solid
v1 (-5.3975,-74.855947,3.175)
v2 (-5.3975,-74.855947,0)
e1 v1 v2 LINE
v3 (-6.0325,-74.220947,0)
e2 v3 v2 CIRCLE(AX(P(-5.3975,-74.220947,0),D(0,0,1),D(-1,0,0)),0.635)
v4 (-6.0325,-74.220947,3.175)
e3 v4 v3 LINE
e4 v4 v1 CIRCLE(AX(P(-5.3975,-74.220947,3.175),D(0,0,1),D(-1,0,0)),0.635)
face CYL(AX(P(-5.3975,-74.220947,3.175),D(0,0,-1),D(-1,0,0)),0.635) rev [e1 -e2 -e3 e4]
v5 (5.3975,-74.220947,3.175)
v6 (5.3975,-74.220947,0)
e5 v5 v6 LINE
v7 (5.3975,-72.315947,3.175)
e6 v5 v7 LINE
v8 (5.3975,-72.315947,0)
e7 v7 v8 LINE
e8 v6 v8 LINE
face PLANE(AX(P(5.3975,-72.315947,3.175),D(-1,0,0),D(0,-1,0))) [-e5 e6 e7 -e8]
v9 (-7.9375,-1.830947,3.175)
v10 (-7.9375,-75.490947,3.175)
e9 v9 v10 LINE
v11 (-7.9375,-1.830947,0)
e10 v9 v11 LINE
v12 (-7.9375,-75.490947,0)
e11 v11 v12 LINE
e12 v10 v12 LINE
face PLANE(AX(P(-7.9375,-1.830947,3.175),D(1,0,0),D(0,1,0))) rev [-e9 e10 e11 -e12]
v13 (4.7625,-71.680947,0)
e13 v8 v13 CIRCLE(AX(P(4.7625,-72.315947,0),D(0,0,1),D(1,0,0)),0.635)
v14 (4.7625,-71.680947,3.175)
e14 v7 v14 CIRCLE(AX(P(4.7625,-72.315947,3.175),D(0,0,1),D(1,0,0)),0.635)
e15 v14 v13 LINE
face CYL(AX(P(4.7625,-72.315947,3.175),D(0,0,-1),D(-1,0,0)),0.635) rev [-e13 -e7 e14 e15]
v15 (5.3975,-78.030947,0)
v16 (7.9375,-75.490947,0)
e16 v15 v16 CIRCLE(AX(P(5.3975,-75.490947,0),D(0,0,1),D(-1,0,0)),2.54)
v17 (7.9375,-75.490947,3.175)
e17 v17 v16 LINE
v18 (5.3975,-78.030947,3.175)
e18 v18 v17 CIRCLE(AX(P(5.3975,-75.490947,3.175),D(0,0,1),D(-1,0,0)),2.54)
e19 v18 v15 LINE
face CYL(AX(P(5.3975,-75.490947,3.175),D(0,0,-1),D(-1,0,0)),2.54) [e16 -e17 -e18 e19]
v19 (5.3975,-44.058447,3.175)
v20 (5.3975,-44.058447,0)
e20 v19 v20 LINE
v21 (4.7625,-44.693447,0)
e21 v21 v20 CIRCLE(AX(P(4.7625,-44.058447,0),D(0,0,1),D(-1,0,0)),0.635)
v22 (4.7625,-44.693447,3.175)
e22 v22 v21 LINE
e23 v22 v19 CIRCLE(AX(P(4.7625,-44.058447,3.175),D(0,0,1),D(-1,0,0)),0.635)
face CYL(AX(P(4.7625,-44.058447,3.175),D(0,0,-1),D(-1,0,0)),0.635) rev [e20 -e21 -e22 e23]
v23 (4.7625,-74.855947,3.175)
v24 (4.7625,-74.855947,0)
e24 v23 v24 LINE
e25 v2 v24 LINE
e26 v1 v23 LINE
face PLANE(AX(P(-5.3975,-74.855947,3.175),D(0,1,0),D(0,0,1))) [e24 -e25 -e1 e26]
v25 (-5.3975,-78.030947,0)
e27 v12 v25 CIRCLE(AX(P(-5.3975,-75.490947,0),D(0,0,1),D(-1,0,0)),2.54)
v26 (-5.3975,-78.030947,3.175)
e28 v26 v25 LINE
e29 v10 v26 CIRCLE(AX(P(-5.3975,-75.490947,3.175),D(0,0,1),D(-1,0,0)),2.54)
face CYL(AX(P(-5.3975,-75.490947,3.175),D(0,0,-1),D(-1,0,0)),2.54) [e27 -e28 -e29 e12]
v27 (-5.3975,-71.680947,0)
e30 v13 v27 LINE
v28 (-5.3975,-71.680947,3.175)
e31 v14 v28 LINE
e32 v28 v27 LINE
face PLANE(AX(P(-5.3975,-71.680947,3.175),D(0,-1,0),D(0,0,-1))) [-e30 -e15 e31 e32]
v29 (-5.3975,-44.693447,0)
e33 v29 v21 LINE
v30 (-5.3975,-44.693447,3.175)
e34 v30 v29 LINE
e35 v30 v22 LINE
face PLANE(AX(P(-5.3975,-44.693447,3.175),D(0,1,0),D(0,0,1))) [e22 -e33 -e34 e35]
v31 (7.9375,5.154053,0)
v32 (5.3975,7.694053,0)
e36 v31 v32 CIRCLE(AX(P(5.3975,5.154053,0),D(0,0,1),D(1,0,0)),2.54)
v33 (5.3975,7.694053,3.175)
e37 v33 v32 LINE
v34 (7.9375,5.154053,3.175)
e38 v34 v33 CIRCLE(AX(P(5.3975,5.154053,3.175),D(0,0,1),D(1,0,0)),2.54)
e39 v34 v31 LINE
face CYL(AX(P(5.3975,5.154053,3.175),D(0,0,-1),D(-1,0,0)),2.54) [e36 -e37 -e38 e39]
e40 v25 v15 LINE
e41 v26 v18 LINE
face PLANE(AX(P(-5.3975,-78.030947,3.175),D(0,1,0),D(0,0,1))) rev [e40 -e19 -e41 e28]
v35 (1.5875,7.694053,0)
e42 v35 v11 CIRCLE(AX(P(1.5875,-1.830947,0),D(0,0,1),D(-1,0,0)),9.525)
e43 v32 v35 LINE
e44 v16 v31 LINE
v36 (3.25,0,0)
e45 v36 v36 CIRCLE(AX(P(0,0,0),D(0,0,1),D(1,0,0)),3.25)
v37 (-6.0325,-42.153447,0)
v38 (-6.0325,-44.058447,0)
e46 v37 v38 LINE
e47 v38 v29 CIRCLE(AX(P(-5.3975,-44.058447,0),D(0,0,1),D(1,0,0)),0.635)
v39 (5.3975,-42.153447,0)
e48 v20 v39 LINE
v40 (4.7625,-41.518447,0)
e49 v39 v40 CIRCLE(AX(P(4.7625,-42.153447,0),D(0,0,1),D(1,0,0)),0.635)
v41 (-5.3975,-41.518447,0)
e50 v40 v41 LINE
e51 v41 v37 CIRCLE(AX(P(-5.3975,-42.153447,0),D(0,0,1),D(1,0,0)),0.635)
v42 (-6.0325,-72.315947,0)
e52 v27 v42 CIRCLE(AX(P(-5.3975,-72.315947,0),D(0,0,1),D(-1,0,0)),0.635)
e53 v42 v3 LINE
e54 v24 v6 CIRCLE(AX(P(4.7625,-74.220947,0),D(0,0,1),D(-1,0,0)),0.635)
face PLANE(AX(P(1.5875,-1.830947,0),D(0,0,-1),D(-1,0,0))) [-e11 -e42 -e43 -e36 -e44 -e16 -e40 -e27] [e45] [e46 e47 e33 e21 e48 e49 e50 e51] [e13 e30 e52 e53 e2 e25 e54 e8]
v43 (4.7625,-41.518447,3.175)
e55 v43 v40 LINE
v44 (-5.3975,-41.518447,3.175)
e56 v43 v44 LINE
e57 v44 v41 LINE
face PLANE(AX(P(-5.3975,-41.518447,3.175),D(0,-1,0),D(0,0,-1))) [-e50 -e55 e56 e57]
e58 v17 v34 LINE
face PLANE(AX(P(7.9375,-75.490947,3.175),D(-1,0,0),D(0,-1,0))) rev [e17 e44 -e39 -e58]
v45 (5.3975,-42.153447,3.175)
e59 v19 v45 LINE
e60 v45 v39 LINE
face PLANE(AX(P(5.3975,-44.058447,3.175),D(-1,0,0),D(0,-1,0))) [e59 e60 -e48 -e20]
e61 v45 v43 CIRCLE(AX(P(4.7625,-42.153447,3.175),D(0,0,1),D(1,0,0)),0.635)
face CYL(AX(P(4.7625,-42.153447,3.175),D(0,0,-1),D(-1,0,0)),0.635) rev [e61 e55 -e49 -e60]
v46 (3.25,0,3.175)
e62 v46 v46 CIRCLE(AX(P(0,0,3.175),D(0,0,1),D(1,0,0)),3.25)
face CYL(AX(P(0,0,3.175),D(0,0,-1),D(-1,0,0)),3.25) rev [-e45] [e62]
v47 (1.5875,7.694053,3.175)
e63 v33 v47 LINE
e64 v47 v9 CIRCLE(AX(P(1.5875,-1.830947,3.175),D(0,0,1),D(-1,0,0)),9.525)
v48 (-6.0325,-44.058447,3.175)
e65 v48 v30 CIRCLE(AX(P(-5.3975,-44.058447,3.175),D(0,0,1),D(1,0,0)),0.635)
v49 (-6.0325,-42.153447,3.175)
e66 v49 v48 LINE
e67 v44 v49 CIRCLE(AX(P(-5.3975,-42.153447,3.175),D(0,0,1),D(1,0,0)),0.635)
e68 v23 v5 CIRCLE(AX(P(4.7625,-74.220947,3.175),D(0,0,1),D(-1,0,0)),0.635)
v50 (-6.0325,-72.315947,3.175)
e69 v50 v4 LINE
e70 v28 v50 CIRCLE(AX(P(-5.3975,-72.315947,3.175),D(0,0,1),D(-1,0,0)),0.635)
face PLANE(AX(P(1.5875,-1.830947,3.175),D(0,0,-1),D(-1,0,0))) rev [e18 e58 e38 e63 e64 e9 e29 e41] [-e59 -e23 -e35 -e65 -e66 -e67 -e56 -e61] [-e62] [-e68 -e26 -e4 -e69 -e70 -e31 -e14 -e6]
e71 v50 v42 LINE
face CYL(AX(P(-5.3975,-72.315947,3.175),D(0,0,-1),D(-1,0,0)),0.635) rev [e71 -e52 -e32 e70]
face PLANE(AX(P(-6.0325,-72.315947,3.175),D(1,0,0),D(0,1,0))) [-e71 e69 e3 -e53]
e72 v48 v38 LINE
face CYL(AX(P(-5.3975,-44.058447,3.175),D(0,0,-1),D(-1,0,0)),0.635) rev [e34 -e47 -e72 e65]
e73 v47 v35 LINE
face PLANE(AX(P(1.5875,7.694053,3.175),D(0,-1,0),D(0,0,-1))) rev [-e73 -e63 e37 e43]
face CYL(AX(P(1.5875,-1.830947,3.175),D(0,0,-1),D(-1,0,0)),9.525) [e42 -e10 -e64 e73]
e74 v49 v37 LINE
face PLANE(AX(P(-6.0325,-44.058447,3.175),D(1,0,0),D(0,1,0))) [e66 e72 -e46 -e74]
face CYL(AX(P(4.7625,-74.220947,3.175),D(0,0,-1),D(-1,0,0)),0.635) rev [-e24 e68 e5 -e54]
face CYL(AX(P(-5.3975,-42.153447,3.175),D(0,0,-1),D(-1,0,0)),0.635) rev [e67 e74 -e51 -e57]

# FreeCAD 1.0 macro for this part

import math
import FreeCAD as App
import Part
import Sketcher
Q = App.Units.Quantity

doc = App.newDocument("Part")
body = doc.addObject("PartDesign::Body", "Body")

# Sketch on XY plane
sketch1 = doc.addObject("Sketcher::SketchObject", "Sketch")
body.addObject(sketch1)
sketch1.AttachmentSupport = (doc.XY_Plane, [""])
sketch1.MapMode = "FlatFace"
sketch1.addGeometry(Part.LineSegment(App.Vector(-7.9, -1.8, 0), App.Vector(-7.9, -75.5, 0)), False)
sketch1.addGeometry(Part.ArcOfCircle(Part.Circle(App.Vector(-5.4, -75.5, 0), App.Vector(0, 0, 1), 2.5), math.radians(-180), math.radians(-90)), False)
sketch1.addGeometry(Part.LineSegment(App.Vector(-5.4, -78, 0), App.Vector(5.4, -78, 0)), False)
sketch1.addGeometry(Part.ArcOfCircle(Part.Circle(App.Vector(5.4, -75.5, 0), App.Vector(0, 0, 1), 2.5), math.radians(-90), math.radians(0)), False)
sketch1.addGeometry(Part.LineSegment(App.Vector(7.9, -75.5, 0), App.Vector(7.9, 5.2, 0)), False)
sketch1.addGeometry(Part.ArcOfCircle(Part.Circle(App.Vector(5.4, 5.2, 0), App.Vector(0, 0, 1), 2.5), math.radians(0), math.radians(90)), False)
sketch1.addGeometry(Part.LineSegment(App.Vector(5.4, 7.7, 0), App.Vector(1.6, 7.7, 0)), False)
sketch1.addGeometry(Part.ArcOfCircle(Part.Circle(App.Vector(1.6, -1.8, 0), App.Vector(0, 0, 1), 9.5), math.radians(90), math.radians(180)), False)
sketch1.addGeometry(Part.ArcOfCircle(Part.Circle(App.Vector(-5.4, -42.2, 0), App.Vector(0, 0, 1), 0.6), math.radians(90), math.radians(180)), False)
sketch1.addGeometry(Part.LineSegment(App.Vector(-5.4, -41.5, 0), App.Vector(4.8, -41.5, 0)), False)
sketch1.addGeometry(Part.ArcOfCircle(Part.Circle(App.Vector(4.8, -42.2, 0), App.Vector(0, 0, 1), 0.6), math.radians(0), math.radians(90)), False)
sketch1.addGeometry(Part.LineSegment(App.Vector(5.4, -42.2, 0), App.Vector(5.4, -44.1, 0)), False)
sketch1.addGeometry(Part.ArcOfCircle(Part.Circle(App.Vector(4.8, -44.1, 0), App.Vector(0, 0, 1), 0.6), math.radians(-90), math.radians(0)), False)
sketch1.addGeometry(Part.LineSegment(App.Vector(4.8, -44.7, 0), App.Vector(-5.4, -44.7, 0)), False)
sketch1.addGeometry(Part.ArcOfCircle(Part.Circle(App.Vector(-5.4, -44.1, 0), App.Vector(0, 0, 1), 0.6), math.radians(180), math.radians(270)), False)
sketch1.addGeometry(Part.LineSegment(App.Vector(-6, -44.1, 0), App.Vector(-6, -42.2, 0)), False)
sketch1.addGeometry(Part.ArcOfCircle(Part.Circle(App.Vector(-5.4, -72.3, 0), App.Vector(0, 0, 1), 0.6), math.radians(90), math.radians(180)), False)
sketch1.addGeometry(Part.LineSegment(App.Vector(-5.4, -71.7, 0), App.Vector(4.8, -71.7, 0)), False)
sketch1.addGeometry(Part.ArcOfCircle(Part.Circle(App.Vector(4.8, -72.3, 0), App.Vector(0, 0, 1), 0.6), math.radians(0), math.radians(90)), False)
sketch1.addGeometry(Part.LineSegment(App.Vector(5.4, -72.3, 0), App.Vector(5.4, -74.2, 0)), False)
sketch1.addGeometry(Part.ArcOfCircle(Part.Circle(App.Vector(4.8, -74.2, 0), App.Vector(0, 0, 1), 0.6), math.radians(-90), math.radians(0)), False)
sketch1.addGeometry(Part.LineSegment(App.Vector(4.8, -74.9, 0), App.Vector(-5.4, -74.9, 0)), False)
sketch1.addGeometry(Part.ArcOfCircle(Part.Circle(App.Vector(-5.4, -74.2, 0), App.Vector(0, 0, 1), 0.6), math.radians(180), math.radians(270)), False)
sketch1.addGeometry(Part.LineSegment(App.Vector(-6, -74.2, 0), App.Vector(-6, -72.3, 0)), False)
sketch1.addGeometry(Part.Circle(App.Vector(0, 0, 0), App.Vector(0, 0, 1), 3.2), False)
sketch1.addConstraint(Sketcher.Constraint("Tangent", 0, 2, 1, 1))
sketch1.addConstraint(Sketcher.Constraint("Tangent", 1, 2, 2, 1))
sketch1.addConstraint(Sketcher.Constraint("Tangent", 2, 2, 3, 1))
sketch1.addConstraint(Sketcher.Constraint("Tangent", 3, 2, 4, 1))
sketch1.addConstraint(Sketcher.Constraint("Tangent", 4, 2, 5, 1))
sketch1.addConstraint(Sketcher.Constraint("Tangent", 5, 2, 6, 1))
sketch1.addConstraint(Sketcher.Constraint("Tangent", 6, 2, 7, 1))
sketch1.addConstraint(Sketcher.Constraint("Tangent", 7, 2, 0, 1))
sketch1.addConstraint(Sketcher.Constraint("Tangent", 8, 1, 9, 1))
sketch1.addConstraint(Sketcher.Constraint("Tangent", 9, 2, 10, 2))
sketch1.addConstraint(Sketcher.Constraint("Tangent", 10, 1, 11, 1))
sketch1.addConstraint(Sketcher.Constraint("Tangent", 11, 2, 12, 2))
sketch1.addConstraint(Sketcher.Constraint("Tangent", 12, 1, 13, 1))
sketch1.addConstraint(Sketcher.Constraint("Tangent", 13, 2, 14, 2))
sketch1.addConstraint(Sketcher.Constraint("Tangent", 14, 1, 15, 1))
sketch1.addConstraint(Sketcher.Constraint("Tangent", 15, 2, 8, 2))
sketch1.addConstraint(Sketcher.Constraint("Tangent", 16, 1, 17, 1))
sketch1.addConstraint(Sketcher.Constraint("Tangent", 17, 2, 18, 2))
sketch1.addConstraint(Sketcher.Constraint("Tangent", 18, 1, 19, 1))
sketch1.addConstraint(Sketcher.Constraint("Tangent", 19, 2, 20, 2))
sketch1.addConstraint(Sketcher.Constraint("Tangent", 20, 1, 21, 1))
sketch1.addConstraint(Sketcher.Constraint("Tangent", 21, 2, 22, 2))
sketch1.addConstraint(Sketcher.Constraint("Tangent", 22, 1, 23, 1))
sketch1.addConstraint(Sketcher.Constraint("Tangent", 23, 2, 16, 2))
sketch1.addConstraint(Sketcher.Constraint("Vertical", 0))
sketch1.addConstraint(Sketcher.Constraint("Horizontal", 2))
sketch1.addConstraint(Sketcher.Constraint("Vertical", 4))
sketch1.addConstraint(Sketcher.Constraint("Horizontal", 6))
sketch1.addConstraint(Sketcher.Constraint("Horizontal", 9))
sketch1.addConstraint(Sketcher.Constraint("Vertical", 11))
sketch1.addConstraint(Sketcher.Constraint("Horizontal", 13))
sketch1.addConstraint(Sketcher.Constraint("Vertical", 15))
sketch1.addConstraint(Sketcher.Constraint("Horizontal", 17))
sketch1.addConstraint(Sketcher.Constraint("Vertical", 19))
sketch1.addConstraint(Sketcher.Constraint("Horizontal", 21))
sketch1.addConstraint(Sketcher.Constraint("Vertical", 23))
sketch1.addConstraint(Sketcher.Constraint("Coincident", 24, 3, -1, 1))
sketch1.addConstraint(Sketcher.Constraint("Equal", 1, 3))
sketch1.addConstraint(Sketcher.Constraint("Equal", 3, 5))
sketch1.addConstraint(Sketcher.Constraint("Equal", 8, 10))
sketch1.addConstraint(Sketcher.Constraint("Equal", 10, 12))
sketch1.addConstraint(Sketcher.Constraint("Equal", 12, 14))
sketch1.addConstraint(Sketcher.Constraint("Equal", 14, 16))
sketch1.addConstraint(Sketcher.Constraint("Equal", 16, 18))
sketch1.addConstraint(Sketcher.Constraint("Equal", 18, 20))
sketch1.addConstraint(Sketcher.Constraint("Equal", 20, 22))
sketch1.addConstraint(Sketcher.Constraint("Vertical", 1, 3, 8, 3))
sketch1.addConstraint(Sketcher.Constraint("Vertical", 14, 3, 16, 3))
sketch1.addConstraint(Sketcher.Constraint("Vertical", 12, 3, 18, 3))
sketch1.addConstraint(Sketcher.Constraint("Vertical", 5, 2, 10, 1))
sketch1.addConstraint(Sketcher.Constraint("Equal", 15, 19))
sketch1.addConstraint(Sketcher.Constraint("Radius", 1, Q("0.1 in")))
sketch1.addConstraint(Sketcher.Constraint("DistanceX", 9, 1, 9, 2, Q("0.4 in")))
sketch1.addConstraint(Sketcher.Constraint("DistanceY", 0, 2, 0, 1, Q("2.9 in")))
sketch1.addConstraint(Sketcher.Constraint("Radius", 7, Q("0.375 in")))
sketch1.addConstraint(Sketcher.Constraint("Radius", 8, Q("0.025 in")))
sketch1.addConstraint(Sketcher.Constraint("DistanceY", 14, 3, 8, 1, Q("0.1 in")))
sketch1.addConstraint(Sketcher.Constraint("Diameter", 24, Q("6.5 mm")))
sketch1.addConstraint(Sketcher.Constraint("DistanceY", 3, 3, 20, 3, Q("0.05 in")))
sketch1.addConstraint(Sketcher.Constraint("DistanceX", -1, 1, 7, 3, Q("0.0625 in")))
sketch1.addConstraint(Sketcher.Constraint("DistanceY", 1, 3, 8, 3, Q("1.3125 in")))
sketch1.addConstraint(Sketcher.Constraint("DistanceY", 1, 3, -1, 1, Q("75.490947 mm")))
pad1 = doc.addObject("PartDesign::Pad", "Pad")
body.addObject(pad1)
pad1.Profile = sketch1
pad1.Length = Q("0.125 in")

doc.recompute()
